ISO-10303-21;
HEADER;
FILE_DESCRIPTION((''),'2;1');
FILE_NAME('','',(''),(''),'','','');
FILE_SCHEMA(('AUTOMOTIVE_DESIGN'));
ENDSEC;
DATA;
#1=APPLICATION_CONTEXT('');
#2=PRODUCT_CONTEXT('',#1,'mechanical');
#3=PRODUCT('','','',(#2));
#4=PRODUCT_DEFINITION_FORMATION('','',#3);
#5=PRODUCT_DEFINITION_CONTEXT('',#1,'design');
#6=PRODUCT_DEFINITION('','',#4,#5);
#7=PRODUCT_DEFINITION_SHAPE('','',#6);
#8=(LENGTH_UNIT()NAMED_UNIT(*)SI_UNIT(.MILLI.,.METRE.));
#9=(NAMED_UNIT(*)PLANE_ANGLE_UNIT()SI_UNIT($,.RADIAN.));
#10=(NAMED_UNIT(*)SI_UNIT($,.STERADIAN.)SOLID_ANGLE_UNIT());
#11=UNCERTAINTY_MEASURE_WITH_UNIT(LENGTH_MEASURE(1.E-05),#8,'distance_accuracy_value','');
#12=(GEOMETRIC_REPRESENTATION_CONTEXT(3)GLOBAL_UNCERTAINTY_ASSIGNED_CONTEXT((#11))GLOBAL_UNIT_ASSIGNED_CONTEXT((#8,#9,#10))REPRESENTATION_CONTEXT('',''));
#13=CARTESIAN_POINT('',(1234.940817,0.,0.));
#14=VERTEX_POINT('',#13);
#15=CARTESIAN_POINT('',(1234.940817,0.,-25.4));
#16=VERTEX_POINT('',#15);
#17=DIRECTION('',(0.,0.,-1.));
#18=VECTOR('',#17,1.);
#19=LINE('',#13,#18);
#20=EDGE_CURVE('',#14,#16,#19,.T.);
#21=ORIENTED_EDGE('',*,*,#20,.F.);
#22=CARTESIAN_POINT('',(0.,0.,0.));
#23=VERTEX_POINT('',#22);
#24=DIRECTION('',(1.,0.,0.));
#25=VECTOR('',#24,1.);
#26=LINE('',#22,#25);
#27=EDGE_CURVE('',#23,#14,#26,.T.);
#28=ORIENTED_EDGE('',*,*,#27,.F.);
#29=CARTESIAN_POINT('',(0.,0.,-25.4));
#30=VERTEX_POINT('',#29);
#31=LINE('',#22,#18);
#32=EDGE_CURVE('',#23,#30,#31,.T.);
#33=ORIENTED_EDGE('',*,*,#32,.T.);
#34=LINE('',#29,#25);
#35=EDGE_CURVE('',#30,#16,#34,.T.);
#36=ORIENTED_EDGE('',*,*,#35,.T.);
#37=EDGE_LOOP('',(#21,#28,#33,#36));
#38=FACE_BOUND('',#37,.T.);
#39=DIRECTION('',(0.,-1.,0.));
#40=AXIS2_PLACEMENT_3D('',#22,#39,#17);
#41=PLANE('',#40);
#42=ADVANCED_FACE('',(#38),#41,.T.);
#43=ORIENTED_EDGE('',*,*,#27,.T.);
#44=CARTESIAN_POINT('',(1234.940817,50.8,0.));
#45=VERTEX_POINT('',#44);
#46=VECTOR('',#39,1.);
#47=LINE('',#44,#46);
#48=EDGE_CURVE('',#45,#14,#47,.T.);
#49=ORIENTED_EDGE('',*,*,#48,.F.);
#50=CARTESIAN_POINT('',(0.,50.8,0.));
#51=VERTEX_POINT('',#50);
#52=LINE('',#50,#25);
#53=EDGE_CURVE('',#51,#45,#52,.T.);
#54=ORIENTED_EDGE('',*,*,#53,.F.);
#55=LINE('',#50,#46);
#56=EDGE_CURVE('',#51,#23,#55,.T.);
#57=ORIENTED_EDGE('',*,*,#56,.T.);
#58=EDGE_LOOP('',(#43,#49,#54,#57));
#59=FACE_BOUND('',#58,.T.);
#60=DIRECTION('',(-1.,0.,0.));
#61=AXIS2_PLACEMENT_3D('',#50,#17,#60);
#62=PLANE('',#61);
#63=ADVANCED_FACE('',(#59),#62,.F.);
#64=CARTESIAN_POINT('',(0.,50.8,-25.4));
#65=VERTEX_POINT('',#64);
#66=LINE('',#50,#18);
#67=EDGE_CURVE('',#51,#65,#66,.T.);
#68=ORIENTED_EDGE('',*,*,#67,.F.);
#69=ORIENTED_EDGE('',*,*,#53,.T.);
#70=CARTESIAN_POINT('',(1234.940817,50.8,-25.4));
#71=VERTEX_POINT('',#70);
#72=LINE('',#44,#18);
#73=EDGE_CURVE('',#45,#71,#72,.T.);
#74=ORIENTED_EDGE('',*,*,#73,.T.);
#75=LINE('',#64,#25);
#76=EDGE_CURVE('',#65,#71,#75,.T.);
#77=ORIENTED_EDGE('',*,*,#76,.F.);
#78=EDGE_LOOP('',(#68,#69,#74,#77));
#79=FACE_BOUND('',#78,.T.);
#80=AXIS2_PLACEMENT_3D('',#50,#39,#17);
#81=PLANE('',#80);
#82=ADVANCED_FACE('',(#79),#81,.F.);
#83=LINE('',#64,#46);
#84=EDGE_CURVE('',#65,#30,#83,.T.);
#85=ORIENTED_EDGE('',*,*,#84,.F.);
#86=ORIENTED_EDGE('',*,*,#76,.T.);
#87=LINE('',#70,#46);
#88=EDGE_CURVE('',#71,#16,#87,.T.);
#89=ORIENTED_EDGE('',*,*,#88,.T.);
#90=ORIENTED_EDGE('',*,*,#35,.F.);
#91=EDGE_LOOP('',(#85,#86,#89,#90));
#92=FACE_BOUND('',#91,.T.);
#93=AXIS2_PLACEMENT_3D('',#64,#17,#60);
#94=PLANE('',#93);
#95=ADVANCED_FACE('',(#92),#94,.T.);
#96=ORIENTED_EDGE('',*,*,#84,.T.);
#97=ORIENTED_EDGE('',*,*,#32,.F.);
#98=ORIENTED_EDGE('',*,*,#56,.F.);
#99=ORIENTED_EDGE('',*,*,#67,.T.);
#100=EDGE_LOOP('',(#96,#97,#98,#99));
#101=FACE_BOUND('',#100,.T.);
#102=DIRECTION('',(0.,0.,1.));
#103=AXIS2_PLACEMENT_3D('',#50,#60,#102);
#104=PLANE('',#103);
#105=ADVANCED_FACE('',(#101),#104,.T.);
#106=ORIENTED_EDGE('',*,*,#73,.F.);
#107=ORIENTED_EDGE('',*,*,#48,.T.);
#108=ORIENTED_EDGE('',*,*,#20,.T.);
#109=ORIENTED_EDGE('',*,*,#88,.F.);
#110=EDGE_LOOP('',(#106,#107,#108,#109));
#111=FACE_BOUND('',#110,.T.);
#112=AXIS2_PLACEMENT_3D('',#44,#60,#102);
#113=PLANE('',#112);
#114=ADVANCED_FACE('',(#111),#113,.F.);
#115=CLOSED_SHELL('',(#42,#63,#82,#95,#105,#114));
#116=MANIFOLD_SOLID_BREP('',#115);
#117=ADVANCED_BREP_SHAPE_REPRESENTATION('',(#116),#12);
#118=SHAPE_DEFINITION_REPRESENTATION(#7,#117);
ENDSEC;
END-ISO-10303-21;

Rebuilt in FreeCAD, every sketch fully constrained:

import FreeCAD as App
import Part
import Sketcher

V = App.Vector
Q = App.Units.Quantity


def add_polygon(sketch, points):
    """Adds a closed chain of lines whose ends are joined by coincident constraints."""
    first, n = sketch.GeometryCount, len(points)
    for a, b in zip(points, points[1:] + points[:1]):
        sketch.addGeometry(Part.LineSegment(App.Vector(*a, 0), App.Vector(*b, 0)), False)
    for i in range(n):
        sketch.addConstraint(Sketcher.Constraint("Coincident", first + i, 2, first + (i + 1) % n, 1))

doc = App.newDocument("Part")
body = doc.addObject("PartDesign::Body", "Body")

# Sketch on XZ plane
sketch1 = doc.addObject("Sketcher::SketchObject", "Sketch")
body.addObject(sketch1)
sketch1.AttachmentSupport = (doc.XZ_Plane, [""])
sketch1.MapMode = "FlatFace"
add_polygon(sketch1, [(0, -25), (0, 0), (1235, 0), (1235, -25)])  # lines 0-3
sketch1.addConstraint(Sketcher.Constraint("Vertical", 0))
sketch1.addConstraint(Sketcher.Constraint("Horizontal", 1))
sketch1.addConstraint(Sketcher.Constraint("Vertical", 2))
sketch1.addConstraint(Sketcher.Constraint("Horizontal", 3))
sketch1.addConstraint(Sketcher.Constraint("Coincident", 0, 2, -1, 1))
sketch1.addConstraint(Sketcher.Constraint("DistanceY", 0, 1, 0, 2, Q("1 in")))
sketch1.addConstraint(Sketcher.Constraint("DistanceX", 1, 1, 1, 2, Q("1234.940817 mm")))
pad1 = doc.addObject("PartDesign::Pad", "Pad")
body.addObject(pad1)
pad1.Profile = sketch1
pad1.Length = Q("2 in")
pad1.Reversed = True

doc.recompute()
